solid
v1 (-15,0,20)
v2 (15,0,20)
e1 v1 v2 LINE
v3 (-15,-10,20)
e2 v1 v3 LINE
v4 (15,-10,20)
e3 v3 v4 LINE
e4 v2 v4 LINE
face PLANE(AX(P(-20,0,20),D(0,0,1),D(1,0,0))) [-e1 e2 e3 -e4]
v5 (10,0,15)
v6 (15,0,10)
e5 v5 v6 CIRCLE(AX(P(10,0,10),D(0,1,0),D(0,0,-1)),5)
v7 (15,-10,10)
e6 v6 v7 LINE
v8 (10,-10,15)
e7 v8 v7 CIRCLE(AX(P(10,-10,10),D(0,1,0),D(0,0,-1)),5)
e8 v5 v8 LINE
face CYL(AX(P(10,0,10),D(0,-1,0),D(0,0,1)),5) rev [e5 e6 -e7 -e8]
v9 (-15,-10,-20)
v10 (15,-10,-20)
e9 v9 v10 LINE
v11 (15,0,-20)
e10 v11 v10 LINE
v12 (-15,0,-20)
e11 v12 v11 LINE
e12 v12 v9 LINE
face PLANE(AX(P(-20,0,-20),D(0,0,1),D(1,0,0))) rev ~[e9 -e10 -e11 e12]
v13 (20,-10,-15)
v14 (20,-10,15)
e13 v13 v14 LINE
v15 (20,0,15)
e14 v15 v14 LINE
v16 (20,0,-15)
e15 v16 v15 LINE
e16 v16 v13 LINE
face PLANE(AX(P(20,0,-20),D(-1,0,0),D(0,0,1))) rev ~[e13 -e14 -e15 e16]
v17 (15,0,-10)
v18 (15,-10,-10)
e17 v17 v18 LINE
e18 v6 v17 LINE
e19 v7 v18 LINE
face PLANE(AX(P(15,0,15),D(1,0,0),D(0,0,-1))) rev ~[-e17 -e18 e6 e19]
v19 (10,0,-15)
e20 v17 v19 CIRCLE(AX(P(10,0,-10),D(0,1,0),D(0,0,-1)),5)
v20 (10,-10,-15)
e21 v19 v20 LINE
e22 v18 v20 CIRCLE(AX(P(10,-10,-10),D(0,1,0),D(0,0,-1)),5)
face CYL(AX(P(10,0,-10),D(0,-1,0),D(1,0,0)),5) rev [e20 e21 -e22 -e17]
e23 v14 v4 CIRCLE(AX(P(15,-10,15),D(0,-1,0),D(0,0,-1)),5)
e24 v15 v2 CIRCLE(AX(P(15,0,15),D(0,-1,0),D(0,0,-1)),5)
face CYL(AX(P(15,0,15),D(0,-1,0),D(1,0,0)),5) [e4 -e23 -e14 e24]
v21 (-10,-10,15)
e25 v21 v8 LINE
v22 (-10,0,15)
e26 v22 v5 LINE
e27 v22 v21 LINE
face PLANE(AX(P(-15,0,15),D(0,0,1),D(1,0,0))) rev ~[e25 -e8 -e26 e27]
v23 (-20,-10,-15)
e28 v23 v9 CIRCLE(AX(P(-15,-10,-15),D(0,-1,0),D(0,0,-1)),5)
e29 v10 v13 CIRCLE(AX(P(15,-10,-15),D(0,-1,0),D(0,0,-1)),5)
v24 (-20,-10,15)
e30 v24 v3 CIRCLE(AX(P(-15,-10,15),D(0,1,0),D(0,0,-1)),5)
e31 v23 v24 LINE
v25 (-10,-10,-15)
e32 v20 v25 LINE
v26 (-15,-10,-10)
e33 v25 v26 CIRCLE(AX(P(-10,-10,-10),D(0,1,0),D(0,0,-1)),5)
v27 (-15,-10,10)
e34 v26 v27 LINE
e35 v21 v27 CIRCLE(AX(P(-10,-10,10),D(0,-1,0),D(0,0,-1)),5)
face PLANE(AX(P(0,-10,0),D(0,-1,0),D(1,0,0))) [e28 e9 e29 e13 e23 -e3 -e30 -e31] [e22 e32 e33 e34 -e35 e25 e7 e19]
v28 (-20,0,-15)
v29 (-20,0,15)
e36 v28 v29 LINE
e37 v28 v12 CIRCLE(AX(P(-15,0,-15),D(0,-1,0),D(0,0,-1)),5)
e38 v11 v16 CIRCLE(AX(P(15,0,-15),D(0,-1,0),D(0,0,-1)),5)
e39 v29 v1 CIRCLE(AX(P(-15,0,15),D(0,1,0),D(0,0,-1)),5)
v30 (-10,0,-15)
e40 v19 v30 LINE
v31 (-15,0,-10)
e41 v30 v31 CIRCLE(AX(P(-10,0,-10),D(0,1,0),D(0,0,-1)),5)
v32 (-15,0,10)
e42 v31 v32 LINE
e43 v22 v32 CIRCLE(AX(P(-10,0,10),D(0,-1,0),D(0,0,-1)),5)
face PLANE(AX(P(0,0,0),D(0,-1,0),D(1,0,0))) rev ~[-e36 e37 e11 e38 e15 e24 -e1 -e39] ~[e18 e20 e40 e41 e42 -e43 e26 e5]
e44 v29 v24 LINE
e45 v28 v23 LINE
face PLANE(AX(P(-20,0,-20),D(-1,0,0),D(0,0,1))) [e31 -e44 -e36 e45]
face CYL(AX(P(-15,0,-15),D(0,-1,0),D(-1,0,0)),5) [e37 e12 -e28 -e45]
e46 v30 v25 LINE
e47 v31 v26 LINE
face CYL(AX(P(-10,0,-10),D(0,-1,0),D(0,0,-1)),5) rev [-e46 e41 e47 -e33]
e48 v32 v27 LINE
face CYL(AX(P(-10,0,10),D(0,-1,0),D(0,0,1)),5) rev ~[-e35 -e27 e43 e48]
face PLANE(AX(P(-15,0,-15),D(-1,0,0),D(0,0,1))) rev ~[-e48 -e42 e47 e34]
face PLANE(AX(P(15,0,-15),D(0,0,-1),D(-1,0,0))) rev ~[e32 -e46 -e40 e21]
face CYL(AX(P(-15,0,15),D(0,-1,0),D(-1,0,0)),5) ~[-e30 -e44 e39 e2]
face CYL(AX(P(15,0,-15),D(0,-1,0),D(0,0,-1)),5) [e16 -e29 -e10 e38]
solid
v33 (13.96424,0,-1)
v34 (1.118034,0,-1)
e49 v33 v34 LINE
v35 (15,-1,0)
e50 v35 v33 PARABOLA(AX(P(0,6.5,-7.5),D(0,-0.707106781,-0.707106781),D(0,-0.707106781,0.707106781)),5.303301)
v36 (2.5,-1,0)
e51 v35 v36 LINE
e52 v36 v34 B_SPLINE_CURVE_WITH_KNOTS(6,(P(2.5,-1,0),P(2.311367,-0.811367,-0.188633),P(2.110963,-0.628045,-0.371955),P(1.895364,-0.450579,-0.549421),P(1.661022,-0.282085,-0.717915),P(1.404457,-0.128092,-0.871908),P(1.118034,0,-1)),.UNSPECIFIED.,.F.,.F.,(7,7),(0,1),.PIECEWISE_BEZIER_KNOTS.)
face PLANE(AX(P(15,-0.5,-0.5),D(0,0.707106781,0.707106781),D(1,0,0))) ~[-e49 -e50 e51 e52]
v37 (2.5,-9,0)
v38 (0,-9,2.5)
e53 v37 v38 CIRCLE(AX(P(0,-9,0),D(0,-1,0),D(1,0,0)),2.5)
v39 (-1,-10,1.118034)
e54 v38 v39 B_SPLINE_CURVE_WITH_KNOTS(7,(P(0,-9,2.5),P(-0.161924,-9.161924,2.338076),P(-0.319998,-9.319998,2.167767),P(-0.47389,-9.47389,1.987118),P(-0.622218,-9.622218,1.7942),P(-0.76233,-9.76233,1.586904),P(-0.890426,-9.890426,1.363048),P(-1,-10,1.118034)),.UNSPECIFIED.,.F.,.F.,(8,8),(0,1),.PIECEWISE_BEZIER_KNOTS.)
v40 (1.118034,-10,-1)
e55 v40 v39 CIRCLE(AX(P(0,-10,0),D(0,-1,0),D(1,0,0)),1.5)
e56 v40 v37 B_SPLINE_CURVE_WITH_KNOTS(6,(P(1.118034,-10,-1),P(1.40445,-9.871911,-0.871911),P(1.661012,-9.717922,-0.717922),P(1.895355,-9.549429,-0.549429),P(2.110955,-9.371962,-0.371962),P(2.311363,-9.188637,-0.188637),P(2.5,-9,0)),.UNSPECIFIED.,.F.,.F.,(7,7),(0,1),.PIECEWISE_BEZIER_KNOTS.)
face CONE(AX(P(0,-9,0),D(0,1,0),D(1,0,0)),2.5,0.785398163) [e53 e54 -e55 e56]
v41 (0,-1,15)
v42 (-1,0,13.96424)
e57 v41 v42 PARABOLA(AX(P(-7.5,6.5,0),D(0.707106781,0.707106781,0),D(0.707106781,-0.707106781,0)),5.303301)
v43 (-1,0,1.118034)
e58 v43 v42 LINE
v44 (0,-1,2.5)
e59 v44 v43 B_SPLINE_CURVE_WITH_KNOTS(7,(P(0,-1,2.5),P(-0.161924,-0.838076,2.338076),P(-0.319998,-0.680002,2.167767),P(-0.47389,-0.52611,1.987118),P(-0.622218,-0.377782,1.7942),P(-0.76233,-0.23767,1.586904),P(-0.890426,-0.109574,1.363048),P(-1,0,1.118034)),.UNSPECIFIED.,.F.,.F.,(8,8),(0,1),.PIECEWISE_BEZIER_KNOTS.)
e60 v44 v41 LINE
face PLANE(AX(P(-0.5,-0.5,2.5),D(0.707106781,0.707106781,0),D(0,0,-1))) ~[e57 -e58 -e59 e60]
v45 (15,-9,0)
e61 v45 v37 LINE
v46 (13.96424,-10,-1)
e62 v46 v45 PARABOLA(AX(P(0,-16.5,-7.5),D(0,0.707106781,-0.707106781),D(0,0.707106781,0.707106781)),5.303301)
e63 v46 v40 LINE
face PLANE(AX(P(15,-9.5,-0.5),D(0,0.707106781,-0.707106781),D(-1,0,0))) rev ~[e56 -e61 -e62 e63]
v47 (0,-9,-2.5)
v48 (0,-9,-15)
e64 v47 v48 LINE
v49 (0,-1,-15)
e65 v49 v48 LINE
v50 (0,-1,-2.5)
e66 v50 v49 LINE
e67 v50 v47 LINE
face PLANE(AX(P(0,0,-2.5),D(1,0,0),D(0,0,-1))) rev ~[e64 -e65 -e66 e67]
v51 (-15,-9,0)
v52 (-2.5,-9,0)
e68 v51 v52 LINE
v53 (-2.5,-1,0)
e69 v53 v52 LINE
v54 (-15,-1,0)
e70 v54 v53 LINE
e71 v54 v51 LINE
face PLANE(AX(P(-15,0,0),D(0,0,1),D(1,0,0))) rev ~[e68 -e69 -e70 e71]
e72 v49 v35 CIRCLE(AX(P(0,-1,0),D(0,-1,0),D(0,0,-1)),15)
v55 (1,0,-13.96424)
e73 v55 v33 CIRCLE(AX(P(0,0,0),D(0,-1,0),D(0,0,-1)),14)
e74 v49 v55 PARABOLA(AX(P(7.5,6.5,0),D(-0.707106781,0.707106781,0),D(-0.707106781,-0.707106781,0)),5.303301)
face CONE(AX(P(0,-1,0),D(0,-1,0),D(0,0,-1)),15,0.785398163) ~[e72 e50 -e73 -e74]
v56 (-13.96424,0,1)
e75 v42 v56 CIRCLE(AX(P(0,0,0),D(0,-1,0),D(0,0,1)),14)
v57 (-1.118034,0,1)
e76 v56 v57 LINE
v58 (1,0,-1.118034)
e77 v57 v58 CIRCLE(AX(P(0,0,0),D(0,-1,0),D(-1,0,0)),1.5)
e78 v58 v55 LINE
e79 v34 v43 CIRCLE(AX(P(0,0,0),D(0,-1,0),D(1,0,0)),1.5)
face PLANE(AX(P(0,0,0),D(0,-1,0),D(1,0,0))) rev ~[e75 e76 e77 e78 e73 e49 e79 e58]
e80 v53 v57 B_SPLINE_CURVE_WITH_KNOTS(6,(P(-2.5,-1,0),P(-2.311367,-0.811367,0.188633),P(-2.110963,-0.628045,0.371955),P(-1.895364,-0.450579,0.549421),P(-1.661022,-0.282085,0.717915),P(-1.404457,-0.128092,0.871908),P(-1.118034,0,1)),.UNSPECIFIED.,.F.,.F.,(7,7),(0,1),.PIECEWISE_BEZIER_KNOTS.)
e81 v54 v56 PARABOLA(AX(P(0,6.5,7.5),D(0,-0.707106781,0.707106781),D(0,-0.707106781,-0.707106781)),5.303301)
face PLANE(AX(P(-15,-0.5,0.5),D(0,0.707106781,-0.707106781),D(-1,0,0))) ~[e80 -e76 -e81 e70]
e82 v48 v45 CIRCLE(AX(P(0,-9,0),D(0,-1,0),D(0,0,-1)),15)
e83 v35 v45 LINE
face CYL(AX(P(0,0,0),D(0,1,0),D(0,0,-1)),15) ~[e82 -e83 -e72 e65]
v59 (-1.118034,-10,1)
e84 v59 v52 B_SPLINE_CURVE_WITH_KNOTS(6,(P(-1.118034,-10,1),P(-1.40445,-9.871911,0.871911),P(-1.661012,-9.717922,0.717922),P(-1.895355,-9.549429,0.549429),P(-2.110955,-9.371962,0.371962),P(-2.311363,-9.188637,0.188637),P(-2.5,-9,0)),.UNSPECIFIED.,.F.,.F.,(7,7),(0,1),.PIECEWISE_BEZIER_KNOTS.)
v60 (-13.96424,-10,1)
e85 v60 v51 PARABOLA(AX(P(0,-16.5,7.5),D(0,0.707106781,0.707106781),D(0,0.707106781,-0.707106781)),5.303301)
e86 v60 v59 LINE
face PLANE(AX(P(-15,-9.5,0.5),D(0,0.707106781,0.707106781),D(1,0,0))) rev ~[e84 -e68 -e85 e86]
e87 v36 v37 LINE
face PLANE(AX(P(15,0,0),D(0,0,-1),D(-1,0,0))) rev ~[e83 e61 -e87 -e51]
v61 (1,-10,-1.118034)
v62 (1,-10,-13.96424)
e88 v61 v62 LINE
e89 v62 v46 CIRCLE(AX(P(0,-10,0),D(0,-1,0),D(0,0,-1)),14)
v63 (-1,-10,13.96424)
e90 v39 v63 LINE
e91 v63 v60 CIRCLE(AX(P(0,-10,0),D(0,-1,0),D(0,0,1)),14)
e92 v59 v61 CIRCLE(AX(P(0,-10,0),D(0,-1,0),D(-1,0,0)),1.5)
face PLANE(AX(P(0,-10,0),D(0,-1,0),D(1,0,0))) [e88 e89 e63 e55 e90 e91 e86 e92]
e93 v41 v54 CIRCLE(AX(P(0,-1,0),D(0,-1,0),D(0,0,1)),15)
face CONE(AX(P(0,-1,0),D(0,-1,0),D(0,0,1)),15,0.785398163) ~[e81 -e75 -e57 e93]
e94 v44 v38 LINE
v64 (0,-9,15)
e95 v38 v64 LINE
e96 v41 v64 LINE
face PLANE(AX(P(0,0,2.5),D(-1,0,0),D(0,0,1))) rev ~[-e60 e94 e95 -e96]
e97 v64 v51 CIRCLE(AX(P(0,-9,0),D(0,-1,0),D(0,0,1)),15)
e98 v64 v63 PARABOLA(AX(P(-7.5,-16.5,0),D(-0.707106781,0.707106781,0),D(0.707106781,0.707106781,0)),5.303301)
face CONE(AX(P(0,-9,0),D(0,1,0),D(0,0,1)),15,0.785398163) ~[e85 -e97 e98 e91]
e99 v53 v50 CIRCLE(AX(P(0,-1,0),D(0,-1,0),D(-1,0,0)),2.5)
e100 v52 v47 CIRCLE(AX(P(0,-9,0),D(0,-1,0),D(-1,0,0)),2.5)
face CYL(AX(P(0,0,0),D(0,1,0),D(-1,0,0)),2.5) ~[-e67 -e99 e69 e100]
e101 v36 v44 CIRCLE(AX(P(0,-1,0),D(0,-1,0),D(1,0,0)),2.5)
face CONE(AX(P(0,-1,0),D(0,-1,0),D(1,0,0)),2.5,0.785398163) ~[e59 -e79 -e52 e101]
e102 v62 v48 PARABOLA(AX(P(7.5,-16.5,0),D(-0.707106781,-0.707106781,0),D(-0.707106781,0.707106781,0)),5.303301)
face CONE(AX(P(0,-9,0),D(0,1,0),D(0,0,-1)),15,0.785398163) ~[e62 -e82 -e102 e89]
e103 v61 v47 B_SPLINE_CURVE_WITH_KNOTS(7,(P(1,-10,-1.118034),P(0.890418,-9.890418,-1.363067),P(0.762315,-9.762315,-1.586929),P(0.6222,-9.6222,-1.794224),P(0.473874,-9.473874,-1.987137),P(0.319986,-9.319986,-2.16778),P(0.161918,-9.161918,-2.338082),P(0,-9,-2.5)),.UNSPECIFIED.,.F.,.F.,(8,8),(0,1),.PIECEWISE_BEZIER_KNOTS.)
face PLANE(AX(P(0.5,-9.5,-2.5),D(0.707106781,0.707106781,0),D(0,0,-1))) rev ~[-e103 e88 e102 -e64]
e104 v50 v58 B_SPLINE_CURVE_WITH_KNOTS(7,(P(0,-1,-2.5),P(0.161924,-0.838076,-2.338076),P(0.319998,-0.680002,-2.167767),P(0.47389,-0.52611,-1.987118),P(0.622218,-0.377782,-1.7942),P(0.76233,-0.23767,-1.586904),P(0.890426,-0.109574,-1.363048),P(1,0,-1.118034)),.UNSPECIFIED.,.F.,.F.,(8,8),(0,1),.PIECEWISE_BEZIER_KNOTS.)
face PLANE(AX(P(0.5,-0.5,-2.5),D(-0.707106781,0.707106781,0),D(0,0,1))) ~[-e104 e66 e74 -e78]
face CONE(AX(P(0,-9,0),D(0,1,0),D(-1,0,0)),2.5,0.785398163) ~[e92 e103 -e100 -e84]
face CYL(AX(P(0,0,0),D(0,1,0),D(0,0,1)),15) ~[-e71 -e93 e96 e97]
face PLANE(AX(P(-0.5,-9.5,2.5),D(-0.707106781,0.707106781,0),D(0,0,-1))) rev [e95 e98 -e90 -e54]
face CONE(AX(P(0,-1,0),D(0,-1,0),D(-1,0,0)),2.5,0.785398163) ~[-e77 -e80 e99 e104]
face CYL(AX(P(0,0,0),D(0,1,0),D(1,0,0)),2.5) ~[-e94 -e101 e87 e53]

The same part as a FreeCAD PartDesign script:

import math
import FreeCAD as App
import Part
import Sketcher
Q = App.Units.Quantity


def edges_at(feature, points):
    """Names of the edges that pass closest to the given points."""
    edges = feature.Shape.Edges
    near = lambda p: min(range(len(edges)), key=lambda i: edges[i].distToShape(Part.Vertex(*p))[0])
    return sorted({f"Edge{near(p) + 1}" for p in points})


def add_polygon(sketch, points):
    """Adds a closed chain of lines whose ends are joined by coincident constraints."""
    first, n = sketch.GeometryCount, len(points)
    for a, b in zip(points, points[1:] + points[:1]):
        sketch.addGeometry(Part.LineSegment(App.Vector(*a, 0), App.Vector(*b, 0)), False)
    for i in range(n):
        sketch.addConstraint(Sketcher.Constraint("Coincident", first + i, 2, first + (i + 1) % n, 1))

doc = App.newDocument("Part")
body = doc.addObject("PartDesign::Body", "Body")

sketch1 = doc.addObject("Sketcher::SketchObject", "Sketch")
body.addObject(sketch1)
sketch1.AttachmentSupport = (doc.XZ_Plane, [""])
sketch1.MapMode = "FlatFace"
add_polygon(sketch1, [(-20, 20), (-20, -20), (20, -20), (20, 20)])
add_polygon(sketch1, [(-15, 15), (15, 15), (15, -15), (-15, -15)])
sketch1.addConstraint(Sketcher.Constraint("Vertical", 0))
sketch1.addConstraint(Sketcher.Constraint("Horizontal", 1))
sketch1.addConstraint(Sketcher.Constraint("Vertical", 2))
sketch1.addConstraint(Sketcher.Constraint("Horizontal", 3))
sketch1.addConstraint(Sketcher.Constraint("Horizontal", 4))
sketch1.addConstraint(Sketcher.Constraint("Vertical", 5))
sketch1.addConstraint(Sketcher.Constraint("Horizontal", 6))
sketch1.addConstraint(Sketcher.Constraint("Vertical", 7))
sketch1.addConstraint(Sketcher.Constraint("Symmetric", 0, 2, 2, 2, -1, 1))
sketch1.addConstraint(Sketcher.Constraint("Symmetric", 4, 2, 6, 2, -1, 1))
sketch1.addConstraint(Sketcher.Constraint("Equal", 3, 0))
sketch1.addConstraint(Sketcher.Constraint("Equal", 6, 5))
sketch1.addConstraint(Sketcher.Constraint("DistanceX", 1, 1, 1, 2, Q("40 mm")))
sketch1.addConstraint(Sketcher.Constraint("DistanceX", 4, 1, 4, 2, Q("30 mm")))
pad1 = doc.addObject("PartDesign::Pad", "Pad")
body.addObject(pad1)
pad1.Profile = sketch1
pad1.Length = 10
doc.recompute()

fillet = doc.addObject("PartDesign::Fillet", "Fillet")
body.addObject(fillet)
fillet.Base = (pad1, edges_at(pad1, [
    (-20, -5, 20),
    (20, -5, 20),
    (20, -5, -20),
    (-20, -5, -20),
    (15, -5, -15),
    (15, -5, 15),
    (-15, -5, -15),
    (-15, -5, 15),
]))
fillet.Radius = 5
body2 = doc.addObject("PartDesign::Body", "Body001")

sketch2 = doc.addObject("Sketcher::SketchObject", "Sketch001")
body2.addObject(sketch2)
sketch2.AttachmentSupport = (doc.getObject("XZ_Plane001"), [""])
sketch2.MapMode = "FlatFace"
sketch2.addGeometry(Part.LineSegment(App.Vector(0, 2.5, 0), App.Vector(0, 15, 0)), False)
sketch2.addGeometry(Part.ArcOfCircle(Part.Circle(App.Vector(0, 0, 0), App.Vector(0, 0, 1), 15), math.radians(90), math.radians(180)), False)
sketch2.addGeometry(Part.LineSegment(App.Vector(-15, 0, 0), App.Vector(-2.5, 0, 0)), False)
sketch2.addGeometry(Part.ArcOfCircle(Part.Circle(App.Vector(0, 0, 0), App.Vector(0, 0, 1), 2.5), math.radians(180), math.radians(270)), False)
sketch2.addGeometry(Part.LineSegment(App.Vector(0, -2.5, 0), App.Vector(0, -15, 0)), False)
sketch2.addGeometry(Part.ArcOfCircle(Part.Circle(App.Vector(0, 0, 0), App.Vector(0, 0, 1), 15), math.radians(-90), math.radians(0)), False)
sketch2.addGeometry(Part.LineSegment(App.Vector(15, 0, 0), App.Vector(2.5, 0, 0)), False)
sketch2.addGeometry(Part.ArcOfCircle(Part.Circle(App.Vector(0, 0, 0), App.Vector(0, 0, 1), 2.5), math.radians(0), math.radians(90)), False)
sketch2.addConstraint(Sketcher.Constraint("Coincident", 0, 2, 1, 1))
sketch2.addConstraint(Sketcher.Constraint("Coincident", 1, 2, 2, 1))
sketch2.addConstraint(Sketcher.Constraint("Coincident", 2, 2, 3, 1))
sketch2.addConstraint(Sketcher.Constraint("Coincident", 3, 2, 4, 1))
sketch2.addConstraint(Sketcher.Constraint("Coincident", 4, 2, 5, 1))
sketch2.addConstraint(Sketcher.Constraint("Coincident", 5, 2, 6, 1))
sketch2.addConstraint(Sketcher.Constraint("Coincident", 6, 2, 7, 1))
sketch2.addConstraint(Sketcher.Constraint("Coincident", 7, 2, 0, 1))
sketch2.addConstraint(Sketcher.Constraint("Vertical", 0))
sketch2.addConstraint(Sketcher.Constraint("Horizontal", 2))
sketch2.addConstraint(Sketcher.Constraint("Vertical", 4))
sketch2.addConstraint(Sketcher.Constraint("Horizontal", 6))
sketch2.addConstraint(Sketcher.Constraint("Coincident", 1, 3, -1, 1))
sketch2.addConstraint(Sketcher.Constraint("Coincident", 3, 3, -1, 1))
sketch2.addConstraint(Sketcher.Constraint("Coincident", 5, 3, -1, 1))
sketch2.addConstraint(Sketcher.Constraint("Coincident", 7, 3, -1, 1))
sketch2.addConstraint(Sketcher.Constraint("Equal", 1, 5))
sketch2.addConstraint(Sketcher.Constraint("Equal", 3, 7))
sketch2.addConstraint(Sketcher.Constraint("PointOnObject", 0, 2, -2))
sketch2.addConstraint(Sketcher.Constraint("PointOnObject", 1, 2, -1))
sketch2.addConstraint(Sketcher.Constraint("PointOnObject", 3, 2, -2))
sketch2.addConstraint(Sketcher.Constraint("PointOnObject", 5, 2, -1))
sketch2.addConstraint(Sketcher.Constraint("Radius", 1, Q("15 mm")))
sketch2.addConstraint(Sketcher.Constraint("Radius", 3, Q("2.5 mm")))
pad2 = doc.addObject("PartDesign::Pad", "Pad001")
body2.addObject(pad2)
pad2.Profile = sketch2
pad2.Length = 10
doc.recompute()

chamfer = doc.addObject("PartDesign::Chamfer", "Chamfer")
body2.addObject(chamfer)
chamfer.Base = (pad2, edges_at(pad2, [
    (8.75, 0, 0),
    (1.768, 0, 1.768),
    (0, 0, 8.75),
    (-10.607, 0, 10.607),
    (-8.75, 0, 0),
    (-1.768, 0, -1.768),
    (0, 0, -8.75),
    (10.607, 0, -10.607),
]))
chamfer.Size = 1
doc.recompute()

chamfer2 = doc.addObject("PartDesign::Chamfer", "Chamfer001")
body2.addObject(chamfer2)
chamfer2.Base = (chamfer, edges_at(chamfer, [
    (8.75, -10, 0),
    (1.768, -10, 1.768),
    (0, -10, 8.75),
    (-10.607, -10, 10.607),
    (-8.75, -10, 0),
    (-1.768, -10, -1.768),
    (0, -10, -8.75),
    (10.607, -10, -10.607),
]))
chamfer2.Size = 1

doc.recompute()
